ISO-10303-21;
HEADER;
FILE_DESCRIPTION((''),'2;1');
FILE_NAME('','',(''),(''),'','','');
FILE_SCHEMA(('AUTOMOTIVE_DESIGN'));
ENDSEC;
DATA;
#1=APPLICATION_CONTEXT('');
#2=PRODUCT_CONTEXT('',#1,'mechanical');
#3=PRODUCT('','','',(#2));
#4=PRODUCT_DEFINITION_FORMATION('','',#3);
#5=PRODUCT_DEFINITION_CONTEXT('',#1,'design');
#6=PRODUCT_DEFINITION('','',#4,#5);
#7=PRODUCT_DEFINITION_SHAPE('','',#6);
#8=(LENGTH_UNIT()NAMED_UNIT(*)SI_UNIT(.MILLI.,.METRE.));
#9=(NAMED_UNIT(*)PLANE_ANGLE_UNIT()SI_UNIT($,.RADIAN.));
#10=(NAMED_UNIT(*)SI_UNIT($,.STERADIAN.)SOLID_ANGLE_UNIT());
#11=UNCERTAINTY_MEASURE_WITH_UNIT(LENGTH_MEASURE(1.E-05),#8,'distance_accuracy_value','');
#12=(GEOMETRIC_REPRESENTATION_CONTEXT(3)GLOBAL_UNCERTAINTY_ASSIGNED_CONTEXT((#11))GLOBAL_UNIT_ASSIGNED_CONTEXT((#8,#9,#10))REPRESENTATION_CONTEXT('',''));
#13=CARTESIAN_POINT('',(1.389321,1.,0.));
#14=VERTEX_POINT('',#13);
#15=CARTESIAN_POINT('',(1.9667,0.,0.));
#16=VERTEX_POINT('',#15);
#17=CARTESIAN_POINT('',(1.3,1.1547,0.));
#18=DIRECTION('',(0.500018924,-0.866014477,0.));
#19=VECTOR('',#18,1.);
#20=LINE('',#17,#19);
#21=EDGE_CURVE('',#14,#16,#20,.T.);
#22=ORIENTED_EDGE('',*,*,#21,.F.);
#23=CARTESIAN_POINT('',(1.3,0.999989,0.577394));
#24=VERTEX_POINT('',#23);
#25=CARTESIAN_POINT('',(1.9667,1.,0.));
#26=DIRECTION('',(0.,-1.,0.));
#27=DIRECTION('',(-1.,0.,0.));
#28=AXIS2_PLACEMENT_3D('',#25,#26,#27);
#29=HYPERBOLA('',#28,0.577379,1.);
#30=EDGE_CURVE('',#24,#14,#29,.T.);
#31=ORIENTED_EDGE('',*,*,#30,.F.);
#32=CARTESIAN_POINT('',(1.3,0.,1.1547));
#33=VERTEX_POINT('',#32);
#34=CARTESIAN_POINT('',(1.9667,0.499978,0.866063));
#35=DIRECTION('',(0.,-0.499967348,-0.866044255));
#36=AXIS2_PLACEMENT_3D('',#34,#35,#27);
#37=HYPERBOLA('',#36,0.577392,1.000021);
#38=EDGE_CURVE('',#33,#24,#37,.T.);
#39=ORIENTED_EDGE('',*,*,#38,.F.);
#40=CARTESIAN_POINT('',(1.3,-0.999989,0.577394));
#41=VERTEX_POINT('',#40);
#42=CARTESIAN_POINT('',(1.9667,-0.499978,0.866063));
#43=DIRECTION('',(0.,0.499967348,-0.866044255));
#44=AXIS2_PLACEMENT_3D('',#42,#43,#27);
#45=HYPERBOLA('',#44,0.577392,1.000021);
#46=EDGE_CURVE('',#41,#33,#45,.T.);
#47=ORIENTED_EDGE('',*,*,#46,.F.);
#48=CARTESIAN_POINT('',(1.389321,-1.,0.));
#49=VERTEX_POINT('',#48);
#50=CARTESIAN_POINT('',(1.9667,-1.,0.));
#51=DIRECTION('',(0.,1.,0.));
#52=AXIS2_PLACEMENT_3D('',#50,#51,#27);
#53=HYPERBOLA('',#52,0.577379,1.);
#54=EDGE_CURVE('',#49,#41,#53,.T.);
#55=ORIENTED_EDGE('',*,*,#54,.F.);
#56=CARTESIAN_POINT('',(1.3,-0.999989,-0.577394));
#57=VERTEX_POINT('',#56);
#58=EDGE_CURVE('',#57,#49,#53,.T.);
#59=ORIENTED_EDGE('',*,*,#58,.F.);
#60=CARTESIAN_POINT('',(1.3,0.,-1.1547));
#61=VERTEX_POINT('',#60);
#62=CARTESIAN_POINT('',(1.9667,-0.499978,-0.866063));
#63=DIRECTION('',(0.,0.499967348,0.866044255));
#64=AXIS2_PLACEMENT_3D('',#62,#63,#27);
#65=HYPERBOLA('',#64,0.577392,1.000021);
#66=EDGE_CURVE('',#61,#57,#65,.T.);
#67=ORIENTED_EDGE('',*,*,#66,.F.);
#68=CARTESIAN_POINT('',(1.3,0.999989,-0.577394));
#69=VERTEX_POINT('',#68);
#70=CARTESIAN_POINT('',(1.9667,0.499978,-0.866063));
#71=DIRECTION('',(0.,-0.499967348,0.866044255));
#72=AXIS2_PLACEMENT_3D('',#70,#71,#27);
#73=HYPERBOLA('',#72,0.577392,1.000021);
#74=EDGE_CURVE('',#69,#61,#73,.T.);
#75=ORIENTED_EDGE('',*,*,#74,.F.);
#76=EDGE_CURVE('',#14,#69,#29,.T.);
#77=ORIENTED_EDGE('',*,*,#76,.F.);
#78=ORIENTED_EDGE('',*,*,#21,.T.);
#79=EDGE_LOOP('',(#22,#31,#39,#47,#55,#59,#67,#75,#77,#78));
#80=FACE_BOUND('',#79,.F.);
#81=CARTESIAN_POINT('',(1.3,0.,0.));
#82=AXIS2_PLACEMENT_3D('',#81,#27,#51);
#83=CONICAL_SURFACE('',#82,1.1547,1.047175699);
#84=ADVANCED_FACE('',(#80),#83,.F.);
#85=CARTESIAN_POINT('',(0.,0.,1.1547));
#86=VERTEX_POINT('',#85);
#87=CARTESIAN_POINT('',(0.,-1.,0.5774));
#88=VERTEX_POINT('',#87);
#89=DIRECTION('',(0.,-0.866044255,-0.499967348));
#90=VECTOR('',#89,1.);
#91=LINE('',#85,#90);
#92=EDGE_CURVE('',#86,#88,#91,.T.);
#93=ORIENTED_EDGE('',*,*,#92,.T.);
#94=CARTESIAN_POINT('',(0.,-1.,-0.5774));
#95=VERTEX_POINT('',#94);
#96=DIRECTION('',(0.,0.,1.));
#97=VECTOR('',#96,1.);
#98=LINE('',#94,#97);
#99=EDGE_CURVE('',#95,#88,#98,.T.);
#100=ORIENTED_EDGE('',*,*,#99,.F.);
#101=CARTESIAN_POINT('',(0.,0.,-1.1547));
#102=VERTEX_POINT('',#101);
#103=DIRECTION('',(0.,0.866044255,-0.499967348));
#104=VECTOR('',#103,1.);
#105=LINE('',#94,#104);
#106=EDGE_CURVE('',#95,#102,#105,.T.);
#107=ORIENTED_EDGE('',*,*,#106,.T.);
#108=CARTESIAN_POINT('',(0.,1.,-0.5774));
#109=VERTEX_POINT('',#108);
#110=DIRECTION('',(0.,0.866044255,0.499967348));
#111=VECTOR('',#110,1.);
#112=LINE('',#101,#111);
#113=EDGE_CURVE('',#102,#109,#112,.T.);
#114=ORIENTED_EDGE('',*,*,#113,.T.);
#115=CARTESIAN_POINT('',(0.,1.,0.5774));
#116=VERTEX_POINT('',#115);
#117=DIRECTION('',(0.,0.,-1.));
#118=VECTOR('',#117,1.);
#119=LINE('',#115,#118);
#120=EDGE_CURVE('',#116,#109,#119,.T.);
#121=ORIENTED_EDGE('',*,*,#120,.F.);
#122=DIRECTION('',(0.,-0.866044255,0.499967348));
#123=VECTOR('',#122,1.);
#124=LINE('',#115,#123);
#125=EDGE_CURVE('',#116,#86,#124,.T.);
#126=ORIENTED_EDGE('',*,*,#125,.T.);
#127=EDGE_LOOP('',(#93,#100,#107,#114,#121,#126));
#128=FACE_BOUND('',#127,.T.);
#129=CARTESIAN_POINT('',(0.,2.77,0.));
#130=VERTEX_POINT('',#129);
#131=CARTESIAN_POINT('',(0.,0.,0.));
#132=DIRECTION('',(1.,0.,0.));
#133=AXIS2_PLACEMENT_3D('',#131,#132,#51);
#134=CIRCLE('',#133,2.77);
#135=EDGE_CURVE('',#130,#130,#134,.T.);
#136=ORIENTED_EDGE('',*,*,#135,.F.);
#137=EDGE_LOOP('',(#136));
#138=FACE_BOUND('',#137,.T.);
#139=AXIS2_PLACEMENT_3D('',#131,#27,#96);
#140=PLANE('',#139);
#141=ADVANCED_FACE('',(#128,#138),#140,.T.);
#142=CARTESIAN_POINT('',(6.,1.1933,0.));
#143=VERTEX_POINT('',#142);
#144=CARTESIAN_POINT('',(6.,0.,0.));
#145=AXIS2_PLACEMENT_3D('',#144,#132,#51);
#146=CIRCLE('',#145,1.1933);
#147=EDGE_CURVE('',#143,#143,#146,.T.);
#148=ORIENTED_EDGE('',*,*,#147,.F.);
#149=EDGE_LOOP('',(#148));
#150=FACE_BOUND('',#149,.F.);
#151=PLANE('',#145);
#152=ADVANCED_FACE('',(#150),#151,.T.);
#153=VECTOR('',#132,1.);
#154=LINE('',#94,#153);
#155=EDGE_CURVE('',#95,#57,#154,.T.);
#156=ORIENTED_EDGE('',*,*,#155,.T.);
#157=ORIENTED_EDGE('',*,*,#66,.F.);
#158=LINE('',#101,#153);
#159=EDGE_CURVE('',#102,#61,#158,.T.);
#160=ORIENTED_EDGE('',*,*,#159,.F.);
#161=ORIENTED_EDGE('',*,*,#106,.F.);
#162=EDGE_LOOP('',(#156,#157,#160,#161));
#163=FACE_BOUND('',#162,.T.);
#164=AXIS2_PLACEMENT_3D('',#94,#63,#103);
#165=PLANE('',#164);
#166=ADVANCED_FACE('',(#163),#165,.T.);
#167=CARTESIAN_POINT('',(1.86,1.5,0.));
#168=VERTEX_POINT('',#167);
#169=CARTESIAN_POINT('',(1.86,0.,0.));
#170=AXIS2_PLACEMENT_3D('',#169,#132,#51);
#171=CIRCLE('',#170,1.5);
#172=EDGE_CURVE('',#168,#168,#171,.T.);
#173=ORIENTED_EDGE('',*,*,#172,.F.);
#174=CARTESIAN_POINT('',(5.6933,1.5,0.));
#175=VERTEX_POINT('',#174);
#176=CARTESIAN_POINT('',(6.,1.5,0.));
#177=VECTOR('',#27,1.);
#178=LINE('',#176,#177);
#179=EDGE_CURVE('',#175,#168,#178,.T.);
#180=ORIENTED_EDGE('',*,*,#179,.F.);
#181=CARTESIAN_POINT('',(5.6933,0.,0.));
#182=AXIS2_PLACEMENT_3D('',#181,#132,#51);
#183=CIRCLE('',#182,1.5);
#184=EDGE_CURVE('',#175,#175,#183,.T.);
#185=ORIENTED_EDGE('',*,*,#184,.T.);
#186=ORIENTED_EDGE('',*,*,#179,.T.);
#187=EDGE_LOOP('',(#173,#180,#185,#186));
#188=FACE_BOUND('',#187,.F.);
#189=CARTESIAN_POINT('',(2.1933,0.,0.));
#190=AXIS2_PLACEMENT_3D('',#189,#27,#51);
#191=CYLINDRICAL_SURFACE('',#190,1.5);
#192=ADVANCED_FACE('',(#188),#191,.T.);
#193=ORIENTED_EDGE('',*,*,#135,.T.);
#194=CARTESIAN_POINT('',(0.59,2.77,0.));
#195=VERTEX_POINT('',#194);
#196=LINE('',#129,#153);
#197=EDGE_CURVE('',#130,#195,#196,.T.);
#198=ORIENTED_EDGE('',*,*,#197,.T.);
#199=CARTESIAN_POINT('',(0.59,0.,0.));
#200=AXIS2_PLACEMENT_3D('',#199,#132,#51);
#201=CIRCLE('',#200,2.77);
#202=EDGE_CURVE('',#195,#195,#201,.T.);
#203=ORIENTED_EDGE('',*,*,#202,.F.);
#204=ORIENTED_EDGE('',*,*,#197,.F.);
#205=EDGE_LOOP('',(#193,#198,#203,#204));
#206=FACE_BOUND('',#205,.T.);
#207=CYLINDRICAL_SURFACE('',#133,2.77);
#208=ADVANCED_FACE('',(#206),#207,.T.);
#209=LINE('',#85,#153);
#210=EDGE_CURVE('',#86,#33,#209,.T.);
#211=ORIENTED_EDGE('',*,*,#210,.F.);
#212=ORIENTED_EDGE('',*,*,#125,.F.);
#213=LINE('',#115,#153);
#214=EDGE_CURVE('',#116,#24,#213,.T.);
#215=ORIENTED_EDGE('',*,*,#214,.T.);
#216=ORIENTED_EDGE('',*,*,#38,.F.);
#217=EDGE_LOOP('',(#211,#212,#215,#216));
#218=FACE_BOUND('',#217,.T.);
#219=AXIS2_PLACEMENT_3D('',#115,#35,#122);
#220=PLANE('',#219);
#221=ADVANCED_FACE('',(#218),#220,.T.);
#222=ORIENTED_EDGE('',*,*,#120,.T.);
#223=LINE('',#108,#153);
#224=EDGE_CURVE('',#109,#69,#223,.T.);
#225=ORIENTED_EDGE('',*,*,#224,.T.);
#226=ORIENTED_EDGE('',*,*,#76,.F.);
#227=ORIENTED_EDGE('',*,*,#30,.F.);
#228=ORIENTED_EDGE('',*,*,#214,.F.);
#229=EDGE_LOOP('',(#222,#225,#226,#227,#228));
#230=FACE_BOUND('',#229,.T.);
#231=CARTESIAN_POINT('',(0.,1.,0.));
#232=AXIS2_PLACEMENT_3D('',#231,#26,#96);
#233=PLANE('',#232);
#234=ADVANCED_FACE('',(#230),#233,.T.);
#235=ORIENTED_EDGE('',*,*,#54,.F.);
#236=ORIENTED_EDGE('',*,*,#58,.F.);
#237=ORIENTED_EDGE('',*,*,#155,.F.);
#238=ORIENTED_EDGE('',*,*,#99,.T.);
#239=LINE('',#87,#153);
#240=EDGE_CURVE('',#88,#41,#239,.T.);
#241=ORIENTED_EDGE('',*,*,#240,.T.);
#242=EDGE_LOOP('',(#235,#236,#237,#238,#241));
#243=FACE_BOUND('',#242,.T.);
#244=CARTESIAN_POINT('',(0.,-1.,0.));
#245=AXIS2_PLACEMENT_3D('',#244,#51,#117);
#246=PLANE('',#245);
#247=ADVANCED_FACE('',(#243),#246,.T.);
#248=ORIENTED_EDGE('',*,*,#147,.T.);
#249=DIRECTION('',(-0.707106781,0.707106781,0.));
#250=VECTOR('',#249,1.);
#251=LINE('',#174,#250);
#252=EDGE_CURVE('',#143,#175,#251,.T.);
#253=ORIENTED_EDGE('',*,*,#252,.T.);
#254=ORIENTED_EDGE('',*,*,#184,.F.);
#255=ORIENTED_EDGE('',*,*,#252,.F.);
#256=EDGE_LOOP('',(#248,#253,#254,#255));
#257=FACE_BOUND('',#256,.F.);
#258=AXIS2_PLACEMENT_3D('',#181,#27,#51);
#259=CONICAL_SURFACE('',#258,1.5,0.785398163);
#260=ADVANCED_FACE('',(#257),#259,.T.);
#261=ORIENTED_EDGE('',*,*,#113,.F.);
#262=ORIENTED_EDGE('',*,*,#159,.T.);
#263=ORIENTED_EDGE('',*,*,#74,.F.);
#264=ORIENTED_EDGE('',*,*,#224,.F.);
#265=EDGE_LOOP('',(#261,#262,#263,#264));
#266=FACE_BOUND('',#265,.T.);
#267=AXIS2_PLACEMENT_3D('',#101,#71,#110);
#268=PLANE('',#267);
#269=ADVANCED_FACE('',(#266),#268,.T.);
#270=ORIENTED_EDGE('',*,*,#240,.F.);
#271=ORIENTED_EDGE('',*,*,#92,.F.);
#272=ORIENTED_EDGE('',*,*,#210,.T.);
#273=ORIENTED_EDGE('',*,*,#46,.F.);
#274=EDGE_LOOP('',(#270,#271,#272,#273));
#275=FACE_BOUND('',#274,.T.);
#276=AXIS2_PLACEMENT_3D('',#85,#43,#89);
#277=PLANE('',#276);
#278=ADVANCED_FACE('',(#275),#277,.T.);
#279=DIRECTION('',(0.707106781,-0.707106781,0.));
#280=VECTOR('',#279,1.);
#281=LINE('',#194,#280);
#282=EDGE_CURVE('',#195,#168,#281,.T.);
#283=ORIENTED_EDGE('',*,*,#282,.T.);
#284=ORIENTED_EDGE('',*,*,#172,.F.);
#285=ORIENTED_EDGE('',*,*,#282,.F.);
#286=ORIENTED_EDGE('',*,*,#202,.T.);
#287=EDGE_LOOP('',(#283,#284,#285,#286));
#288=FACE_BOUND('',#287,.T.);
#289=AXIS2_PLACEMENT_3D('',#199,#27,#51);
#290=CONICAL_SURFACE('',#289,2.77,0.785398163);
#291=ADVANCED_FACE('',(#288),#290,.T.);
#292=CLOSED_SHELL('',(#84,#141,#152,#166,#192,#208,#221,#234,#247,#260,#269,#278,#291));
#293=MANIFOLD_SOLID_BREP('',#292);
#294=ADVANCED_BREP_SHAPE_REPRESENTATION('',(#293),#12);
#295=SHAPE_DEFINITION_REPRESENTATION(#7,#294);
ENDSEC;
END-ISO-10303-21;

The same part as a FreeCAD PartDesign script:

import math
import FreeCAD as App
import Part
import Sketcher

V = App.Vector
Q = App.Units.Quantity


def edges_at(feature, points):
    """Names of the edges that pass closest to the given points."""
    edges = feature.Shape.Edges
    near = lambda p: min(range(len(edges)), key=lambda i: edges[i].distToShape(Part.Vertex(*p))[0])
    return sorted({f"Edge{near(p) + 1}" for p in points})


def add_polygon(sketch, points):
    """Adds a closed chain of lines whose ends are joined by coincident constraints."""
    first, n = sketch.GeometryCount, len(points)
    for a, b in zip(points, points[1:] + points[:1]):
        sketch.addGeometry(Part.LineSegment(App.Vector(*a, 0), App.Vector(*b, 0)), False)
    for i in range(n):
        sketch.addConstraint(Sketcher.Constraint("Coincident", first + i, 2, first + (i + 1) % n, 1))

doc = App.newDocument("Part")
body = doc.addObject("PartDesign::Body", "Body")

sketch1 = body.newObject("Sketcher::SketchObject", "Sketch")
sketch1.AttachmentSupport = (doc.getObject("XY_Plane"), [""])
sketch1.MapMode = "FlatFace"
add_polygon(sketch1, [(1.9667, 0), (6, 0), (6, 1.5), (1.86, 1.5), (0.59, 2.77), (0, 2.77), (0, 1.1547), (1.3, 1.1547)])
sketch1.addConstraint([
    Sketcher.Constraint("Horizontal", 0),
    Sketcher.Constraint("Vertical", 1),
    Sketcher.Constraint("Horizontal", 2),
    Sketcher.Constraint("Horizontal", 4),
    Sketcher.Constraint("Vertical", 5),
    Sketcher.Constraint("Horizontal", 6),
    Sketcher.Constraint("PointOnObject", 0, 2, -1),
    Sketcher.Constraint("PointOnObject", 4, 2, -2),
    Sketcher.Constraint("DistanceX", 6, 1, 6, 2, 1.3),
    Sketcher.Constraint("DistanceX", -1, 1, 0, 2, 6.0),
    Sketcher.Constraint("DistanceX", -1, 1, 2, 2, 1.86),
    Sketcher.Constraint("Angle", 3, Q("135 deg")),
    Sketcher.Constraint("DistanceY", 1, 1, 1, 2, 1.5),
    Sketcher.Constraint("DistanceX", 4, 2, 4, 1, 0.59),
    Sketcher.Constraint("DistanceX", 0, 1, 0, 2, 4.0333),
    Sketcher.Constraint("DistanceY", 5, 2, 5, 1, 1.6153),
])
revolution = body.newObject("PartDesign::Revolution", "Revolution")
revolution.Profile = sketch1
revolution.ReferenceAxis = (sketch1, ["H_Axis"])
revolution.Angle = 360

sketch2 = body.newObject("Sketcher::SketchObject", "Sketch001")
sketch2.AttachmentSupport = (doc.getObject("YZ_Plane"), [""])
sketch2.MapMode = "FlatFace"
sketch2.addGeometry([
    Part.LineSegment(V(1, 0.5774, 0), V(0, 1.1547, 0)),
    Part.ArcOfCircle(Part.Circle(V(0, 0, 0), V(0, 0, 1), 1.1547), math.radians(30.002137), math.radians(90)),
    Part.ArcOfCircle(Part.Circle(V(0, 0, 0), V(0, 0, 1), 1.1547), math.radians(90), math.radians(149.997863)),
    Part.LineSegment(V(0, 1.1547, 0), V(-1, 0.5774, 0)),
    Part.ArcOfCircle(Part.Circle(V(0, 0, 0), V(0, 0, 1), 1.1547), math.radians(-30.002137), math.radians(30.002137)),
    Part.LineSegment(V(1, 0.5774, 0), V(1, -0.5774, 0)),
    Part.LineSegment(V(-1, 0.5774, 0), V(-1, -0.5774, 0)),
    Part.ArcOfCircle(Part.Circle(V(0, 0, 0), V(0, 0, 1), 1.1547), math.radians(149.997863), math.radians(210.002137)),
    Part.LineSegment(V(-1, -0.5774, 0), V(0, -1.1547, 0)),
    Part.ArcOfCircle(Part.Circle(V(0, 0, 0), V(0, 0, 1), 1.1547), math.radians(-149.997863), math.radians(-90)),
    Part.ArcOfCircle(Part.Circle(V(0, 0, 0), V(0, 0, 1), 1.1547), math.radians(-90), math.radians(-30.002137)),
    Part.LineSegment(V(0, -1.1547, 0), V(1, -0.5774, 0)),
], False)
sketch2.addConstraint([
    Sketcher.Constraint("Coincident", 0, 1, 1, 1),
    Sketcher.Constraint("Coincident", 1, 2, 0, 2),
    Sketcher.Constraint("Coincident", 2, 1, 3, 1),
    Sketcher.Constraint("Coincident", 3, 2, 2, 2),
    Sketcher.Constraint("Coincident", 4, 1, 5, 2),
    Sketcher.Constraint("Coincident", 5, 1, 4, 2),
    Sketcher.Constraint("Coincident", 6, 1, 7, 1),
    Sketcher.Constraint("Coincident", 7, 2, 6, 2),
    Sketcher.Constraint("Coincident", 8, 1, 9, 1),
    Sketcher.Constraint("Coincident", 9, 2, 8, 2),
    Sketcher.Constraint("Coincident", 10, 1, 11, 1),
    Sketcher.Constraint("Coincident", 11, 2, 10, 2),
    Sketcher.Constraint("Vertical", 5),
    Sketcher.Constraint("Vertical", 6),
    Sketcher.Constraint("Coincident", 1, 3, -1, 1),
    Sketcher.Constraint("Coincident", 2, 3, -1, 1),
    Sketcher.Constraint("Coincident", 4, 3, -1, 1),
    Sketcher.Constraint("Coincident", 7, 3, -1, 1),
    Sketcher.Constraint("Coincident", 9, 3, -1, 1),
    Sketcher.Constraint("Coincident", 10, 3, -1, 1),
    Sketcher.Constraint("Coincident", 2, 1, 1, 2),
    Sketcher.Constraint("Coincident", 5, 1, 0, 1),
    Sketcher.Constraint("Coincident", 6, 1, 3, 2),
    Sketcher.Constraint("Coincident", 8, 1, 7, 2),
    Sketcher.Constraint("Coincident", 10, 1, 9, 2),
    Sketcher.Constraint("PointOnObject", 1, 2, -2),
    Sketcher.Constraint("PointOnObject", 9, 2, -2),
    Sketcher.Constraint("Parallel", 0, 8),
    Sketcher.Constraint("Parallel", 3, 11),
    Sketcher.Constraint("DistanceX", -1, 1, 0, 1, 1.0),
    Sketcher.Constraint("Radius", 1, 1.1547),
])
pad1 = body.newObject("PartDesign::Pad", "Pad")
pad1.Profile = sketch2
pad1.Type = "UpToFirst"
doc.recompute()

chamfer = body.newObject("PartDesign::Chamfer", "Chamfer")
chamfer.Base = (pad1, edges_at(pad1, [(6, -1.5, 0)]))
chamfer.ChamferType = "Two distances"
chamfer.Size = 0.3067
chamfer.Size2 = 0.3067

doc.recompute()
